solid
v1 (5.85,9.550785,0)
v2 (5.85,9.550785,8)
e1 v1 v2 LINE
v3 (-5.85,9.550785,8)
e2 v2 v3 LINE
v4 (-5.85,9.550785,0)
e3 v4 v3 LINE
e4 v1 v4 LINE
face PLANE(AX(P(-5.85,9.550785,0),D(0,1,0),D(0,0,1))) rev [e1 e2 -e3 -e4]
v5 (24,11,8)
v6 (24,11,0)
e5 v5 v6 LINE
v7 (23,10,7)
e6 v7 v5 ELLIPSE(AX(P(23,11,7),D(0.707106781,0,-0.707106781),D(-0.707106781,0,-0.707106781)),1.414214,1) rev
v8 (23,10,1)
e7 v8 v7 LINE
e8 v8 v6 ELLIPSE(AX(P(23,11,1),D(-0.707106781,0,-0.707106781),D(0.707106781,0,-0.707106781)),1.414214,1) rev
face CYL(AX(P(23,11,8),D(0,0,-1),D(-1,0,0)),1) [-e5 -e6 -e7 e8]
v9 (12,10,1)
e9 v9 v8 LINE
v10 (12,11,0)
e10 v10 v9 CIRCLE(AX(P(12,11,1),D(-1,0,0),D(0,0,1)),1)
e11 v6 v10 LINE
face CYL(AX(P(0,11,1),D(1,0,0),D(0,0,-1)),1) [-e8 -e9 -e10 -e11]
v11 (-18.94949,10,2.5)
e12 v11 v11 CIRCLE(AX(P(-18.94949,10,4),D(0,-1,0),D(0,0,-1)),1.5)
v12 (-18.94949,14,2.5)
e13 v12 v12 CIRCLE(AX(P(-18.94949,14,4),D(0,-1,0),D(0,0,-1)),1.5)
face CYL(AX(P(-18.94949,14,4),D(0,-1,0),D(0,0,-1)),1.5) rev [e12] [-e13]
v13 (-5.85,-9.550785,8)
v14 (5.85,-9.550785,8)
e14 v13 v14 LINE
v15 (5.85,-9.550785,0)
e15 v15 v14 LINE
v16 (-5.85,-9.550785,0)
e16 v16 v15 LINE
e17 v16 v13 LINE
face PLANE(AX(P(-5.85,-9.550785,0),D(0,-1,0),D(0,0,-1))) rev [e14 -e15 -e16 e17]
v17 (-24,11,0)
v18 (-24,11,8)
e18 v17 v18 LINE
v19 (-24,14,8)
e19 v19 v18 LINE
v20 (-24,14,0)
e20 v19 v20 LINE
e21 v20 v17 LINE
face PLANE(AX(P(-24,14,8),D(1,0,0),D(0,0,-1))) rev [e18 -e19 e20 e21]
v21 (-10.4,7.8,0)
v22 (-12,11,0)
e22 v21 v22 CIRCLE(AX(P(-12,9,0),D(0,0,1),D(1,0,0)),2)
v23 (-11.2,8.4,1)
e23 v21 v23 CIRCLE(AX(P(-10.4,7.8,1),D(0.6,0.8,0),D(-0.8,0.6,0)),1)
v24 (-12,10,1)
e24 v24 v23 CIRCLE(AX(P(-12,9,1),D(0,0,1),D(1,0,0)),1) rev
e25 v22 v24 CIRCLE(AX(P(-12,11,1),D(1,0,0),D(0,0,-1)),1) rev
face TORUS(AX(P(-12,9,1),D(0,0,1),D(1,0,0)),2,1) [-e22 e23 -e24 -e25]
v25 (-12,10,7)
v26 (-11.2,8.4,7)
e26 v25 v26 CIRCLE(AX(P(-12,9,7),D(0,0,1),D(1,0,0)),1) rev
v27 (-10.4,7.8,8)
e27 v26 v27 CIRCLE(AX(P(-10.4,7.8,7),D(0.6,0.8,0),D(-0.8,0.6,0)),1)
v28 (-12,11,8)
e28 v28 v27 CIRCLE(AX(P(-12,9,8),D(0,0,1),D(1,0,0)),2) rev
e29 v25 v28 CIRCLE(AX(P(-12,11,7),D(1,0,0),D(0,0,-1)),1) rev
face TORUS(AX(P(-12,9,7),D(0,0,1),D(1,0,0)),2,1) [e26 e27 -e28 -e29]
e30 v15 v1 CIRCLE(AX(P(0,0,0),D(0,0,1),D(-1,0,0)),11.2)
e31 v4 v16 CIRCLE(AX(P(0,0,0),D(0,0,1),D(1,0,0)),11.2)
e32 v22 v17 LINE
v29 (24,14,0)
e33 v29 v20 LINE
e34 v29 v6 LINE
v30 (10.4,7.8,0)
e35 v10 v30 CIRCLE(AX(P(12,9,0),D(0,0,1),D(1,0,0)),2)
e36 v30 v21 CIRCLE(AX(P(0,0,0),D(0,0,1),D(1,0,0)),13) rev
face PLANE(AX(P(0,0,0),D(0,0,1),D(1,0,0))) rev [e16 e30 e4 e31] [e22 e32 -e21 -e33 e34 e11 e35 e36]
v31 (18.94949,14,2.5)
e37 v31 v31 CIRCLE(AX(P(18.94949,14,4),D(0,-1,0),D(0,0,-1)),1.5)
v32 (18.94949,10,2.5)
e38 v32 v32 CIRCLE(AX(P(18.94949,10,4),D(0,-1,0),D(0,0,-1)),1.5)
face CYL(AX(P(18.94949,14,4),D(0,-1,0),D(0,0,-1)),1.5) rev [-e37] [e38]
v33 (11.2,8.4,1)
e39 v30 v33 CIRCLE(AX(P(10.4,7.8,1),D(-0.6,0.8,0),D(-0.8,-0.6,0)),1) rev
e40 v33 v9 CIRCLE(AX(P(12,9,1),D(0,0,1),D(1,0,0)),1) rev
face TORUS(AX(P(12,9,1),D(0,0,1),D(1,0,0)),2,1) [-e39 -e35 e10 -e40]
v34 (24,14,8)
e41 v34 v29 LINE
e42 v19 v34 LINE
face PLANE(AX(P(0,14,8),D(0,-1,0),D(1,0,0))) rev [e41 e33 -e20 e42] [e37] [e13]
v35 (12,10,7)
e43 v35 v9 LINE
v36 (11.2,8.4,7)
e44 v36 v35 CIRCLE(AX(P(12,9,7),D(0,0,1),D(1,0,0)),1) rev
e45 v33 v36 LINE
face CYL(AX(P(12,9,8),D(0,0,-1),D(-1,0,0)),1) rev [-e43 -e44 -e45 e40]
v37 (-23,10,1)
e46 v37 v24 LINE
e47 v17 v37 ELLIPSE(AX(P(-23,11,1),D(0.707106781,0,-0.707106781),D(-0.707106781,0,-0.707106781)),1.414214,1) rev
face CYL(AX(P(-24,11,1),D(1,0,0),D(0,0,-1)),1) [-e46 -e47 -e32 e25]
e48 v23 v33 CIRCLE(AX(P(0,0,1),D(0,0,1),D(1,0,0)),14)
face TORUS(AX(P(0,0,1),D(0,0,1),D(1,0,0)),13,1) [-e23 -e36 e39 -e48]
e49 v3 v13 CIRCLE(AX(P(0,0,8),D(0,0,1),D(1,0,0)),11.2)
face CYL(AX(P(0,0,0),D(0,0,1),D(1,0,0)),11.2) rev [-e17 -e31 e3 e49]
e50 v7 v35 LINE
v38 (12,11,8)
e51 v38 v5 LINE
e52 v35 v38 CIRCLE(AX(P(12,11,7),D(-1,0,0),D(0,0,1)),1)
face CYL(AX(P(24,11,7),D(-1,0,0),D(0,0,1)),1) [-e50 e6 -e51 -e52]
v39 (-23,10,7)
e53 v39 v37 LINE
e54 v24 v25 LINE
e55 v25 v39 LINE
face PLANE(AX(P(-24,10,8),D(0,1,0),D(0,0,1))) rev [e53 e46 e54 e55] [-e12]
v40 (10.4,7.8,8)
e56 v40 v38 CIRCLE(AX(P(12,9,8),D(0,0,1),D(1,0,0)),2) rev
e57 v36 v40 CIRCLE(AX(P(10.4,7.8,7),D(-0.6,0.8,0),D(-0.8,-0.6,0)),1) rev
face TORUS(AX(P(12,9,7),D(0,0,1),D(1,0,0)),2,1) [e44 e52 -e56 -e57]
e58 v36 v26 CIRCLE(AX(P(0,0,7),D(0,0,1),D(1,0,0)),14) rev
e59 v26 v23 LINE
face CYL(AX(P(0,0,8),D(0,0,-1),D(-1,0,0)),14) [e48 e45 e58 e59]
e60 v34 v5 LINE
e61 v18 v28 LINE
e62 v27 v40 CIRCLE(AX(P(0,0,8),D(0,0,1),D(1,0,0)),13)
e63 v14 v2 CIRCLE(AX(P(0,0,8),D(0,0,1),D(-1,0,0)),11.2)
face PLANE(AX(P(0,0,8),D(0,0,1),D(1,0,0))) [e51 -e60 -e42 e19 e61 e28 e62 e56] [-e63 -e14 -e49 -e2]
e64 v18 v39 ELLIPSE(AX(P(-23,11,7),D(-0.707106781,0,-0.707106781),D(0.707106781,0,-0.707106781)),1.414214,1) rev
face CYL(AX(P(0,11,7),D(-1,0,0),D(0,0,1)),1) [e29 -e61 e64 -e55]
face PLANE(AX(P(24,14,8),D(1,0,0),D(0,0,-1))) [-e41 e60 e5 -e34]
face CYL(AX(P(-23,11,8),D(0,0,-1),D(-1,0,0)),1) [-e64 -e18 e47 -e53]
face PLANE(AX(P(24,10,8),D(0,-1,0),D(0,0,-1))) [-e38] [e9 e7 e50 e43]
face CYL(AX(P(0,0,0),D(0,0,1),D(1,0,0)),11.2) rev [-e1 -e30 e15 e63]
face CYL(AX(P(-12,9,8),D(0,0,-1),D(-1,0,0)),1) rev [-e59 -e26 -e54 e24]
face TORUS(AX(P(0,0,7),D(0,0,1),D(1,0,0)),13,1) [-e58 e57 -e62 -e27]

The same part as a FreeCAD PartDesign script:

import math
import FreeCAD as App
import Part
import Sketcher

V = App.Vector
Q = App.Units.Quantity


def edges_at(feature, points):
    """Names of the edges that pass closest to the given points."""
    edges = feature.Shape.Edges
    near = lambda p: min(range(len(edges)), key=lambda i: edges[i].distToShape(Part.Vertex(*p))[0])
    return sorted({f"Edge{near(p) + 1}" for p in points})

doc = App.newDocument("Part")
body = doc.addObject("PartDesign::Body", "Body")

# Sketch on XY plane
sketch1 = doc.addObject("Sketcher::SketchObject", "Sketch")
body.addObject(sketch1)
sketch1.AttachmentSupport = (doc.XY_Plane, [""])
sketch1.MapMode = "FlatFace"
sketch1.addGeometry([
    Part.LineSegment(V(-24, 14, 0), V(-24, 10, 0)),  # 0
    Part.LineSegment(V(-24, 10, 0), V(-9.8, 10, 0)),  # 1
    Part.ArcOfCircle(Part.Circle(V(0, 0, 0), V(0, 0, 1), 14), math.radians(134), math.radians(406)),  # 2
    Part.LineSegment(V(9.8, 10, 0), V(24, 10, 0)),  # 3
    Part.LineSegment(V(24, 10, 0), V(24, 14, 0)),  # 4
    Part.LineSegment(V(24, 14, 0), V(-24, 14, 0)),  # 5
], False)
sketch1.addConstraint([
    Sketcher.Constraint("Coincident", 0, 2, 1, 1),
    Sketcher.Constraint("Coincident", 1, 2, 2, 1),
    Sketcher.Constraint("Coincident", 2, 2, 3, 1),
    Sketcher.Constraint("Coincident", 3, 2, 4, 1),
    Sketcher.Constraint("Coincident", 4, 2, 5, 1),
    Sketcher.Constraint("Coincident", 5, 2, 0, 1),
    Sketcher.Constraint("Vertical", 0),
    Sketcher.Constraint("Horizontal", 1),
    Sketcher.Constraint("Horizontal", 3),
    Sketcher.Constraint("Vertical", 4),
    Sketcher.Constraint("Horizontal", 5),
    Sketcher.Constraint("Coincident", 2, 3, -1, 1),
    Sketcher.Constraint("Symmetric", 0, 2, 3, 2, -2),
    Sketcher.Constraint("Radius", 2, Q("14 mm")),
    Sketcher.Constraint("DistanceX", 5, 2, 5, 1, Q("48 mm")),
    Sketcher.Constraint("DistanceY", 0, 2, 0, 1, Q("4 mm")),
    Sketcher.Constraint("DistanceY", -1, 1, 0, 2, Q("10 mm")),
])
pad1 = doc.addObject("PartDesign::Pad", "Pad")
body.addObject(pad1)
pad1.Profile = sketch1
pad1.Length = 8

# Sketch on XY plane
sketch2 = doc.addObject("Sketcher::SketchObject", "Sketch001")
body.addObject(sketch2)
sketch2.AttachmentSupport = (doc.XY_Plane, [""])
sketch2.MapMode = "FlatFace"
sketch2.AttachmentOffset = App.Placement(V(0, 0, 8), App.Rotation())
sketch2.addGeometry([
    Part.LineSegment(V(6, 10, 0), V(-6, 10, 0)),
    Part.ArcOfCircle(Part.Circle(V(0, 0, 0), V(0, 0, 1), 11), math.radians(121), math.radians(239)),
    Part.LineSegment(V(-6, -10, 0), V(6, -10, 0)),
    Part.ArcOfCircle(Part.Circle(V(0, 0, 0), V(0, 0, 1), 11), math.radians(-59), math.radians(59)),
], False)
sketch2.addConstraint([
    Sketcher.Constraint("Coincident", 0, 2, 1, 1),
    Sketcher.Constraint("Coincident", 1, 2, 2, 1),
    Sketcher.Constraint("Coincident", 2, 2, 3, 1),
    Sketcher.Constraint("Coincident", 3, 2, 0, 1),
    Sketcher.Constraint("Horizontal", 0),
    Sketcher.Constraint("Horizontal", 2),
    Sketcher.Constraint("Coincident", 1, 3, -1, 1),
    Sketcher.Constraint("Coincident", 3, 3, -1, 1),
    Sketcher.Constraint("Equal", 1, 3),
    Sketcher.Constraint("Vertical", 0, 2, 1, 2),
    Sketcher.Constraint("Radius", 1, Q("11.2 mm")),
    Sketcher.Constraint("DistanceX", 0, 2, 0, 1, Q("11.7 mm")),
])
pocket1 = doc.addObject("PartDesign::Pocket", "Pocket")
body.addObject(pocket1)
pocket1.Profile = sketch2
pocket1.Type = "ThroughAll"
doc.recompute()

fillet = doc.addObject("PartDesign::Fillet", "Fillet")
body.addObject(fillet)
fillet.Base = (pocket1, edges_at(pocket1, [
    (16.899, 10, 8),
    (-24, 10, 4),
    (-9.798, 10, 4),
    (9.798, 10, 4),
    (24, 10, 4),
    (0, -14, 8),
    (-16.899, 10, 8),
    (-16.899, 10, 0),
    (0, -14, 0),
    (16.899, 10, 0),
]))
fillet.Radius = 1

# Sketch on XZ plane
sketch3 = doc.addObject("Sketcher::SketchObject", "Sketch002")
body.addObject(sketch3)
sketch3.AttachmentSupport = (doc.XZ_Plane, [""])
sketch3.MapMode = "FlatFace"
sketch3.AttachmentOffset = App.Placement(V(0, 0, -10), App.Rotation())
sketch3.addGeometry([
    Part.Circle(V(-18.9, 4, 0), V(0, 0, 1), 1.5),
    Part.Circle(V(18.9, 4, 0), V(0, 0, 1), 1.5),
], False)
sketch3.addConstraint([
    Sketcher.Constraint("Equal", 0, 1),
    Sketcher.Constraint("Symmetric", 0, 3, 1, 3, -2),
    Sketcher.Constraint("Diameter", 0, Q("3 mm")),
    Sketcher.Constraint("DistanceY", -1, 1, 0, 3, Q("4 mm")),
    Sketcher.Constraint("DistanceX", 0, 3, -1, 1, Q("18.94949 mm")),
])
pocket2 = doc.addObject("PartDesign::Pocket", "Pocket001")
body.addObject(pocket2)
pocket2.Profile = sketch3
pocket2.Type = "ThroughAll"

doc.recompute()
